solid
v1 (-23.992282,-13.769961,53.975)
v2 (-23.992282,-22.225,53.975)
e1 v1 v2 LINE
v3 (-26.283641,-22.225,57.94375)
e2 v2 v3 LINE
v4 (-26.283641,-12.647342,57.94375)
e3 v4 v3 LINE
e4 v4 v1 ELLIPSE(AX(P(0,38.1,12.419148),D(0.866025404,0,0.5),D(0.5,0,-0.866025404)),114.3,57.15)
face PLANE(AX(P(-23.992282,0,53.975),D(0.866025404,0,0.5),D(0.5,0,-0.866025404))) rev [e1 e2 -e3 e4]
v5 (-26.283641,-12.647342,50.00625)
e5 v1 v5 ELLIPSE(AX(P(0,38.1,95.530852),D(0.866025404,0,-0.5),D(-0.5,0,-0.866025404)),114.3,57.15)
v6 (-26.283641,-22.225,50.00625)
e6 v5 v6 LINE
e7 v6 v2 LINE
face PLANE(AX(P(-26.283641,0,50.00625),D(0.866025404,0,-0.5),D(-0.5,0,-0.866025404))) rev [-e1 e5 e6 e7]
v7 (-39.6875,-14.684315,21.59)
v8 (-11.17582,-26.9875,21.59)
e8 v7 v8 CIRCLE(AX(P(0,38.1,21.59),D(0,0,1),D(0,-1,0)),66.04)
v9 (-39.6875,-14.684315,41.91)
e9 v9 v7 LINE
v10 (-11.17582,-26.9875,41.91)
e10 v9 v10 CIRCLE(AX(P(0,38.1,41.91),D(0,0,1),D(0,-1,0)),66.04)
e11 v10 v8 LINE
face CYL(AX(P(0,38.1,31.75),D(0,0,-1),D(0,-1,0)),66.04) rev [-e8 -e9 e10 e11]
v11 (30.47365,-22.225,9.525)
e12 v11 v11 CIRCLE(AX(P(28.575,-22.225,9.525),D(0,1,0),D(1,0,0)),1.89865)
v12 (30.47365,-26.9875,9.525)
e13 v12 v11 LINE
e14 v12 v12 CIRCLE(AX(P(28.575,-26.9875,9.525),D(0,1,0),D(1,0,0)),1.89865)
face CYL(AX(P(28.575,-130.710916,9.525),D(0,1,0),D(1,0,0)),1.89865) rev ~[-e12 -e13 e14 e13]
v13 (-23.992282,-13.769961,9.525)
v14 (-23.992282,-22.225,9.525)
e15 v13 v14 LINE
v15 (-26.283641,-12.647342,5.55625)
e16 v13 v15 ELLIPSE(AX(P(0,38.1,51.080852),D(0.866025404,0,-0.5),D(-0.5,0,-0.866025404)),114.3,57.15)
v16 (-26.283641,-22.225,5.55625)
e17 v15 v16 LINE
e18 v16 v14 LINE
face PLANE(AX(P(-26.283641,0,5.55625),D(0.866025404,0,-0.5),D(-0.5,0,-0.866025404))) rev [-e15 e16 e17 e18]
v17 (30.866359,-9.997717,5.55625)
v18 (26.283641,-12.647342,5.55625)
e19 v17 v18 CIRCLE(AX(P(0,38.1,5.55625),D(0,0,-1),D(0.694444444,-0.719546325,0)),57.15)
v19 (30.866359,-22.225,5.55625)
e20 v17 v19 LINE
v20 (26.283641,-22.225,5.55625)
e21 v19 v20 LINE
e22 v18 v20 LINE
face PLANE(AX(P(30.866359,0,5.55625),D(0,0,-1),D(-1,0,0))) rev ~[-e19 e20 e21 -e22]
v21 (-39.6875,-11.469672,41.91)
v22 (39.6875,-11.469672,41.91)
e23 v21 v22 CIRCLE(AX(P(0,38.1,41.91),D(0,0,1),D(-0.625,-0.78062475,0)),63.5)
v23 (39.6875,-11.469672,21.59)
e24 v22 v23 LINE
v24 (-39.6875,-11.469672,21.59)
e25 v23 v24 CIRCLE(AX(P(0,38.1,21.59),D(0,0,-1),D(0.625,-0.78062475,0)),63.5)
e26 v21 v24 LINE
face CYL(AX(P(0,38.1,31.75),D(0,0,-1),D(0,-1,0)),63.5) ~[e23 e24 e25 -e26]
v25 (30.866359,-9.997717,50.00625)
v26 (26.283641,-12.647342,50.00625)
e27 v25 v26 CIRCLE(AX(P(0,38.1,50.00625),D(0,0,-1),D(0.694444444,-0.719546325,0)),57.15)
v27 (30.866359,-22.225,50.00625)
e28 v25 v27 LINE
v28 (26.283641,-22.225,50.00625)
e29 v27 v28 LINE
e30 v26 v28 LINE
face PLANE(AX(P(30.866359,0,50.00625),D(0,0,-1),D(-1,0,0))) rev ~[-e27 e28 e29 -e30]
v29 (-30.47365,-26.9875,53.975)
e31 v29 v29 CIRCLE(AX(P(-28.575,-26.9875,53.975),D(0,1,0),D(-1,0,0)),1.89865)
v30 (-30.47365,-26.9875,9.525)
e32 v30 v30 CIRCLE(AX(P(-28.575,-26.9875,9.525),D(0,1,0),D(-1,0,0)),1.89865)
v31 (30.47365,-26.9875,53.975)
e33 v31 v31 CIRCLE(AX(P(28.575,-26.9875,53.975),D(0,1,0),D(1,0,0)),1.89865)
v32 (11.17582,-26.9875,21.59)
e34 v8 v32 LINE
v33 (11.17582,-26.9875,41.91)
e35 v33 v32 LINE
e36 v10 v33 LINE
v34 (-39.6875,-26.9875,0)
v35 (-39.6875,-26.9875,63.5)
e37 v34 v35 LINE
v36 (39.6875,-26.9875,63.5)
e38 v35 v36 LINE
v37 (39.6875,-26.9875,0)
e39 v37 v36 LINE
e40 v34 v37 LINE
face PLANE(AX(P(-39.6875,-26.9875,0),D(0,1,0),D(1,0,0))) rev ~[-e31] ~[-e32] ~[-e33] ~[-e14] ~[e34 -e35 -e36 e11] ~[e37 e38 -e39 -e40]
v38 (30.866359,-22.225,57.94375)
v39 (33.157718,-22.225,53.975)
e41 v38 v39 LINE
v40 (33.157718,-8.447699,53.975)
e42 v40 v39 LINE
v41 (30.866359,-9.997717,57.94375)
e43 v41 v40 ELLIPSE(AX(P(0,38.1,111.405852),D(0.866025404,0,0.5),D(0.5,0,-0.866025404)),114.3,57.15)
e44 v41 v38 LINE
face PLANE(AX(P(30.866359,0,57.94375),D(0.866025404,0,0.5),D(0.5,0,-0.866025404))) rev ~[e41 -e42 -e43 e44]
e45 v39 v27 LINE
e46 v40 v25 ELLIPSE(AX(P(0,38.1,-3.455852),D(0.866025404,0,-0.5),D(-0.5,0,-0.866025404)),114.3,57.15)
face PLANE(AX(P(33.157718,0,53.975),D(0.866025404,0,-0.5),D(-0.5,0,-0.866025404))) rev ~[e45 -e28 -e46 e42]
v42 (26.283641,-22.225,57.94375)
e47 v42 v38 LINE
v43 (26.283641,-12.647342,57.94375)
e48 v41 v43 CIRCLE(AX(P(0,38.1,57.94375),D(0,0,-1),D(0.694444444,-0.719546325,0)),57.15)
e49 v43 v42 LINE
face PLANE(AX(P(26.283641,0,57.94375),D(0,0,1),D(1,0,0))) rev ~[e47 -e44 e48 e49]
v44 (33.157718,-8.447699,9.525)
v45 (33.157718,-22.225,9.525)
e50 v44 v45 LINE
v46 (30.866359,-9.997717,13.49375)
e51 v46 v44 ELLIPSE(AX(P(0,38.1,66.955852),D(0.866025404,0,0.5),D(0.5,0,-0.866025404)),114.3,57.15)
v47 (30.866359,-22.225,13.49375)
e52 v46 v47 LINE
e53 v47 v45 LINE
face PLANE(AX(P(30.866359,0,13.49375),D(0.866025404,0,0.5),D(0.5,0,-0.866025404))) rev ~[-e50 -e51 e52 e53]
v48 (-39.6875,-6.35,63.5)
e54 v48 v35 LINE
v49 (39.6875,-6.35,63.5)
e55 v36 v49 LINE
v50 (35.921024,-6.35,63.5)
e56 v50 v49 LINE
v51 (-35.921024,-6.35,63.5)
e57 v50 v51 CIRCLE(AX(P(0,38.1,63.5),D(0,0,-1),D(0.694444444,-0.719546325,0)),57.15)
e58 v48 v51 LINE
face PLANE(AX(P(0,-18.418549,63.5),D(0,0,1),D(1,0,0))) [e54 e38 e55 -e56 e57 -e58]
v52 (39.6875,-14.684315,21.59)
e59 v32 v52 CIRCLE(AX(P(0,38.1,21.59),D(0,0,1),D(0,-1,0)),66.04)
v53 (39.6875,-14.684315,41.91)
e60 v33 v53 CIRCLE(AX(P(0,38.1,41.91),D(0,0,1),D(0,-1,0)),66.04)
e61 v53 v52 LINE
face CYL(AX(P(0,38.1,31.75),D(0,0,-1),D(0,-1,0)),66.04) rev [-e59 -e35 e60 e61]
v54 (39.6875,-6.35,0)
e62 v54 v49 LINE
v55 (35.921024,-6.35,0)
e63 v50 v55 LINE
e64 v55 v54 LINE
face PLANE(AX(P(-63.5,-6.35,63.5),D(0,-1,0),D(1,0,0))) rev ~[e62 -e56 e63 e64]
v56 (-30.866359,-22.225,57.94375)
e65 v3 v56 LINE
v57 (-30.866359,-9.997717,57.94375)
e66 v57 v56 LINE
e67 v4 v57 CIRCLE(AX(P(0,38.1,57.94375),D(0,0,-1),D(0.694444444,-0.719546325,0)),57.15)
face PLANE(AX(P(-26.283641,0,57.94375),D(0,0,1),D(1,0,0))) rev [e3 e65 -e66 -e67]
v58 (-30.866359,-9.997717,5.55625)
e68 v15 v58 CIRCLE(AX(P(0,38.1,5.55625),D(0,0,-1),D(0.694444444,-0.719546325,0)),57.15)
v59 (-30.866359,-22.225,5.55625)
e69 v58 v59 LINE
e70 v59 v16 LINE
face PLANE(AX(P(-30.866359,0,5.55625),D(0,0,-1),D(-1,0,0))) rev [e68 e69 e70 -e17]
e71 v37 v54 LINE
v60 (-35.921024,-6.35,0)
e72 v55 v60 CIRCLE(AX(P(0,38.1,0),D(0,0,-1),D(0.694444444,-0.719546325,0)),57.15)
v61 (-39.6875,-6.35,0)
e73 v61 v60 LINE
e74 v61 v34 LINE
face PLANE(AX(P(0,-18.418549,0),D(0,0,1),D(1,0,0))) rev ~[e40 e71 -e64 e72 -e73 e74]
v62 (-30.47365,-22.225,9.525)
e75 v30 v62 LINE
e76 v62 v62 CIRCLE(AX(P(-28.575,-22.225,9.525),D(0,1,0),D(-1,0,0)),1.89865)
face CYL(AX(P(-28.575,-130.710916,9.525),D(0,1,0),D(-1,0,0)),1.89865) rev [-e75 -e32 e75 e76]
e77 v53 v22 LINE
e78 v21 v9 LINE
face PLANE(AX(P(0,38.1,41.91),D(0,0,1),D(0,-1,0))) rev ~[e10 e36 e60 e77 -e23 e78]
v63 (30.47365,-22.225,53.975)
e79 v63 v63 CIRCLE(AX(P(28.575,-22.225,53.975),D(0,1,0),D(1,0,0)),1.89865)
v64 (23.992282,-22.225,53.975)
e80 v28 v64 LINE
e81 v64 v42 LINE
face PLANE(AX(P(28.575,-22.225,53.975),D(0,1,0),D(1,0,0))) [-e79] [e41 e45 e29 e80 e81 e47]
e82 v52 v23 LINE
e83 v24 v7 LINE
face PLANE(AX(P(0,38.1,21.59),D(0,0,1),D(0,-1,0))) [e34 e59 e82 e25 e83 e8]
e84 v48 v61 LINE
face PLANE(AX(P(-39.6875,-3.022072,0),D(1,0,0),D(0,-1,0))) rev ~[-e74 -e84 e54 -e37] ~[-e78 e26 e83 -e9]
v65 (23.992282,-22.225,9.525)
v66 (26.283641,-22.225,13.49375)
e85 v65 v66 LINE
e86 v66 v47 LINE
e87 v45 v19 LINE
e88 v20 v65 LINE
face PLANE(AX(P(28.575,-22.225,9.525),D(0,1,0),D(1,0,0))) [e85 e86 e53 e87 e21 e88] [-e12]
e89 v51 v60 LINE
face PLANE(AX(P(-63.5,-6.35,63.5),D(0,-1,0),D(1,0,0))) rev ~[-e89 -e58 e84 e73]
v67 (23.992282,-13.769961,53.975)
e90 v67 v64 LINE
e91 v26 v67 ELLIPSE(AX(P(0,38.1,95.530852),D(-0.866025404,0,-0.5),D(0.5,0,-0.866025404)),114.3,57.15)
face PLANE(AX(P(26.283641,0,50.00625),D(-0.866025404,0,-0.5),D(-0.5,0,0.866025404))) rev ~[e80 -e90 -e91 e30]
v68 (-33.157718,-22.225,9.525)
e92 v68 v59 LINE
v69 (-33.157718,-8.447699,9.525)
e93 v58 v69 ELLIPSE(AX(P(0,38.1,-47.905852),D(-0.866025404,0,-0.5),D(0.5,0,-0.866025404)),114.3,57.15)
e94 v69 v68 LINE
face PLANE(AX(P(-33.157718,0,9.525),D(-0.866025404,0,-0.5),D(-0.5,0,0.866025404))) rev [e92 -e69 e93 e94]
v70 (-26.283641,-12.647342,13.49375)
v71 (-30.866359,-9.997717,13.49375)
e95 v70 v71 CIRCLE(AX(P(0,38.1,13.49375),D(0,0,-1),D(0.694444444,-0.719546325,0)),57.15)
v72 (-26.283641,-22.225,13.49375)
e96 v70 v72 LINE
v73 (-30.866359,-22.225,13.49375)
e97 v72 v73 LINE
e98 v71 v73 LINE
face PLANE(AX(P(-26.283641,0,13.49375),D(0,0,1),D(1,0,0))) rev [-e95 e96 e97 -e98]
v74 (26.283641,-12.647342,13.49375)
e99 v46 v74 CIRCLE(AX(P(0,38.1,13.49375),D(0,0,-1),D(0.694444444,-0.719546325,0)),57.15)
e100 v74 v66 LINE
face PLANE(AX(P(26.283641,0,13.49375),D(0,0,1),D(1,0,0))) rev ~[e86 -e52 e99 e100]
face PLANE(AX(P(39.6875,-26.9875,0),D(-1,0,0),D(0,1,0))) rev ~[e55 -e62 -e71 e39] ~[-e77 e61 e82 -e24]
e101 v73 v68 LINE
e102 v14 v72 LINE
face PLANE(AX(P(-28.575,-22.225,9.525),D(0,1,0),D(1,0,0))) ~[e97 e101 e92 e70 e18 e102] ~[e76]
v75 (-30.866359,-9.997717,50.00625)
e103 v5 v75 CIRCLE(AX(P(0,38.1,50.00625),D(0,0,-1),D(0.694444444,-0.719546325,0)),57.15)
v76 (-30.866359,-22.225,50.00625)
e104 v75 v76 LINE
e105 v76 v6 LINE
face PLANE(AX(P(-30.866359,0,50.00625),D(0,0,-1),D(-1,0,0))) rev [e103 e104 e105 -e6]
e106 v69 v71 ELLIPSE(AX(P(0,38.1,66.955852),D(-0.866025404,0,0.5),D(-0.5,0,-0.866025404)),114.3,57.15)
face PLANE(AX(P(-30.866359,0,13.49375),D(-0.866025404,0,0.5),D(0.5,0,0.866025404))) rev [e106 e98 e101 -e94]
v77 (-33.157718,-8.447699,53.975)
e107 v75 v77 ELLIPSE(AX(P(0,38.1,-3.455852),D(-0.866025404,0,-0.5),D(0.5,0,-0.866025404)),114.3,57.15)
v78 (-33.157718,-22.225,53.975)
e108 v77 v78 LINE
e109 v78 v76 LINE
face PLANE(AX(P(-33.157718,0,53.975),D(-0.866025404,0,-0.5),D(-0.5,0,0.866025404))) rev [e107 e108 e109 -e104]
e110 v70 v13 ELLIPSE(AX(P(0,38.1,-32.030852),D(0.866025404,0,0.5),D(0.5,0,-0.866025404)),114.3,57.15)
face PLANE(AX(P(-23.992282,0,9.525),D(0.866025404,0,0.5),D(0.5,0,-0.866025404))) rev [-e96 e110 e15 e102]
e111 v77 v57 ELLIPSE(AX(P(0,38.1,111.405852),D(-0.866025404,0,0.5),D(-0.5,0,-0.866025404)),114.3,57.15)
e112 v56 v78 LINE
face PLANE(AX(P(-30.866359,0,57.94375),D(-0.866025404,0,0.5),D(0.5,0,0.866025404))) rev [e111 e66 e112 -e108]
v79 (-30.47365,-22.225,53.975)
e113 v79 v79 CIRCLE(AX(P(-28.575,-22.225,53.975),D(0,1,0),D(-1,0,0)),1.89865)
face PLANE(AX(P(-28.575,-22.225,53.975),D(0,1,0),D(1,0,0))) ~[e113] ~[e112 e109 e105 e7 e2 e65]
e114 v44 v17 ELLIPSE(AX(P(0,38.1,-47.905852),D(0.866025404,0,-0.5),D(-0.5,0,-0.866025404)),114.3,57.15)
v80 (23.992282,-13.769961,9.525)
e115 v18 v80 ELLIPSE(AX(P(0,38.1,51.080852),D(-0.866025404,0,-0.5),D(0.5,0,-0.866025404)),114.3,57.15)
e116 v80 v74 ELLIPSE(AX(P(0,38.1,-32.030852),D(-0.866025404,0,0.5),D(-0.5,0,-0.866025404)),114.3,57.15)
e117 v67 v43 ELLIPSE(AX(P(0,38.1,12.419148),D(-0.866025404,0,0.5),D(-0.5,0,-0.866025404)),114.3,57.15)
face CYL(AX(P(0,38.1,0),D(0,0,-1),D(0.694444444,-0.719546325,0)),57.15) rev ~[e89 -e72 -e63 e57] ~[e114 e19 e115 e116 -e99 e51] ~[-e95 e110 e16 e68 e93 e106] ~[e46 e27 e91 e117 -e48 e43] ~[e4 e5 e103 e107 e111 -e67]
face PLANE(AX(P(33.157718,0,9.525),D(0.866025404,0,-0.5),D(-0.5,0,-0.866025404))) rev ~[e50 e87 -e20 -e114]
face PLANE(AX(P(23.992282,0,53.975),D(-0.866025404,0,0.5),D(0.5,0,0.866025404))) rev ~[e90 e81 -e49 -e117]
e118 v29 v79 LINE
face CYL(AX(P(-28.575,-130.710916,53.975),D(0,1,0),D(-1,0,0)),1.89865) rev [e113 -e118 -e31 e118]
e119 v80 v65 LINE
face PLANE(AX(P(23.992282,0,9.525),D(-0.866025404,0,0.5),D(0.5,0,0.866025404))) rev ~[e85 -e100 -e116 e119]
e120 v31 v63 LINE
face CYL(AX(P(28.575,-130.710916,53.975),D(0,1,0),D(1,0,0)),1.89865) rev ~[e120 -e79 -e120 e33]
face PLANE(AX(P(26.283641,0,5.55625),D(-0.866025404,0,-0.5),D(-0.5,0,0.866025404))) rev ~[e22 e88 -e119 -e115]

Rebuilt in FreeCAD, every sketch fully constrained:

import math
import FreeCAD as App
import Part
import Sketcher

V = App.Vector
Q = App.Units.Quantity


def add_polygon(sketch, points):
    """Adds a closed chain of lines whose ends are joined by coincident constraints."""
    first, n = sketch.GeometryCount, len(points)
    for a, b in zip(points, points[1:] + points[:1]):
        sketch.addGeometry(Part.LineSegment(App.Vector(*a, 0), App.Vector(*b, 0)), False)
    for i in range(n):
        sketch.addConstraint(Sketcher.Constraint("Coincident", first + i, 2, first + (i + 1) % n, 1))

doc = App.newDocument("Part")
body = doc.addObject("PartDesign::Body", "Body")

sketch1 = body.newObject("Sketcher::SketchObject", "Sketch")
sketch1.AttachmentSupport = (doc.getObject("XY_Plane"), [""])
sketch1.MapMode = "FlatFace"
sketch1.addGeometry([
    Part.LineSegment(V(-40, -3, 0), V(-40, -27, 0)),
    Part.LineSegment(V(-40, -27, 0), V(40, -27, 0)),
    Part.LineSegment(V(40, -27, 0), V(40, -3, 0)),
    Part.ArcOfCircle(Part.Circle(V(0, 38, 0), V(0, 0, 1), 57), math.radians(-134), math.radians(-46)),
], False)
sketch1.addConstraint([
    Sketcher.Constraint("Coincident", 0, 2, 1, 1),
    Sketcher.Constraint("Coincident", 1, 2, 2, 1),
    Sketcher.Constraint("Coincident", 2, 2, 3, 2),
    Sketcher.Constraint("Coincident", 3, 1, 0, 1),
    Sketcher.Constraint("Vertical", 0),
    Sketcher.Constraint("Horizontal", 1),
    Sketcher.Constraint("Vertical", 2),
    Sketcher.Constraint("Symmetric", 2, 2, 3, 1, -2),
    Sketcher.Constraint("Radius", 3, Q("2.25 in")),
    Sketcher.Constraint("DistanceY", -1, 1, 3, 3, Q("1.5 in")),
    Sketcher.Constraint("DistanceX", 1, 1, 1, 2, Q("3.125 in")),
    Sketcher.Constraint("DistanceY", 0, 2, -1, 1, Q("1.0625 in")),
])
pad1 = body.newObject("PartDesign::Pad", "Pad")
pad1.Profile = sketch1
pad1.Length = Q("2.5 in")

sketch2 = body.newObject("Sketcher::SketchObject", "Sketch001")
sketch2.AttachmentSupport = (doc.getObject("XY_Plane"), [""])
sketch2.MapMode = "FlatFace"
sketch2.AttachmentOffset = App.Placement(V(0, 0, 2.5 * 25.4), App.Rotation())
add_polygon(sketch2, [(-64, 6), (-64, -6), (64, -6), (64, 6)])
sketch2.addConstraint([
    Sketcher.Constraint("Vertical", 0),
    Sketcher.Constraint("Horizontal", 1),
    Sketcher.Constraint("Vertical", 2),
    Sketcher.Constraint("Horizontal", 3),
    Sketcher.Constraint("Symmetric", 0, 2, 2, 2, -1, 1),
    Sketcher.Constraint("DistanceX", 1, 1, 1, 2, Q("5 in")),
    Sketcher.Constraint("DistanceY", 0, 2, 0, 1, Q("0.5 in")),
])
pocket1 = body.newObject("PartDesign::Pocket", "Pocket")
pocket1.Profile = sketch2
pocket1.Type = "ThroughAll"

sketch3 = body.newObject("Sketcher::SketchObject", "Sketch002")
sketch3.AttachmentSupport = (doc.getObject("YZ_Plane"), [""])
sketch3.MapMode = "FlatFace"
add_polygon(sketch3, [(-25.4, 41.9), (-27.9, 41.9), (-27.9, 21.6), (-25.4, 21.6)])
sketch3.addGeometry(Part.LineSegment(V(38.1, 21.6, 0), V(38.1, 41.9, 0)), True)
sketch3.addConstraint([
    Sketcher.Constraint("Horizontal", 0),
    Sketcher.Constraint("Vertical", 1),
    Sketcher.Constraint("Horizontal", 2),
    Sketcher.Constraint("Vertical", 3),
    Sketcher.Constraint("Vertical", 4),
    Sketcher.Constraint("Horizontal", 2, 2, 4, 1),
    Sketcher.Constraint("Horizontal", 3, 2, 4, 2),
    Sketcher.Constraint("DistanceX", 0, 2, 0, 1, Q("0.1 in")),
    Sketcher.Constraint("DistanceY", 1, 2, 1, 1, Q("0.8 in")),
    Sketcher.Constraint("DistanceX", 2, 2, -1, 1, Q("1 in")),
    Sketcher.Constraint("DistanceX", -1, 1, 4, 1, Q("1.5 in")),
    Sketcher.Constraint("DistanceY", -1, 1, 0, 2, Q("1.65 in")),
])
groove = body.newObject("PartDesign::Groove", "Groove")
groove.Profile = sketch3
groove.ReferenceAxis = (sketch3, ["Axis0"])
groove.Angle = 360

sketch4 = body.newObject("Sketcher::SketchObject", "Sketch003")
sketch4.AttachmentSupport = (doc.getObject("XZ_Plane"), [""])
sketch4.MapMode = "FlatFace"
sketch4.AttachmentOffset = App.Placement(V(0, 0, 1.0625 * 25.4), App.Rotation())
sketch4.addGeometry([
    Part.Circle(V(28.6, 9.5, 0), V(0, 0, 1), 1.9),
    Part.Circle(V(28.6, 54, 0), V(0, 0, 1), 1.9),
], False)
sketch4.addConstraint([
    Sketcher.Constraint("Equal", 0, 1),
    Sketcher.Constraint("Vertical", 0, 3, 1, 3),
    Sketcher.Constraint("Diameter", 0, Q("0.1495 in")),
    Sketcher.Constraint("DistanceY", 0, 3, 1, 3, Q("1.75 in")),
    Sketcher.Constraint("DistanceX", -1, 1, 0, 3, Q("1.125 in")),
    Sketcher.Constraint("DistanceY", -1, 1, 0, 3, Q("0.375 in")),
])
doc.recompute()
hole = body.newObject("PartDesign::Hole", "Hole")
hole.Profile = sketch4
hole.ThreadType = "None"
hole.Diameter = Q("0.1495 in")
hole.DepthType = "ThroughAll"

sketch5 = body.newObject("Sketcher::SketchObject", "Sketch004")
sketch5.AttachmentSupport = (doc.getObject("XZ_Plane"), [""])
sketch5.MapMode = "FlatFace"
add_polygon(sketch5, [(24, 9.5), (26.3, 13.5), (30.9, 13.5), (33.2, 9.5), (30.9, 5.6), (26.3, 5.6)])
add_polygon(sketch5, [(24, 54), (26.3, 57.9), (30.9, 57.9), (33.2, 54), (30.9, 50), (26.3, 50)])
sketch5.addConstraint([
    Sketcher.Constraint("Horizontal", 1),
    Sketcher.Constraint("Horizontal", 4),
    Sketcher.Constraint("Horizontal", 7),
    Sketcher.Constraint("Horizontal", 10),
    Sketcher.Constraint("Parallel", 0, 3),
    Sketcher.Constraint("Parallel", 2, 5),
    Sketcher.Constraint("Parallel", 3, 6),
    Sketcher.Constraint("Parallel", 5, 8),
    Sketcher.Constraint("Parallel", 6, 9),
    Sketcher.Constraint("Parallel", 8, 11),
    Sketcher.Constraint("Horizontal", 2, 2, 5, 2),
    Sketcher.Constraint("Horizontal", 8, 2, 11, 2),
    Sketcher.Constraint("Vertical", 1, 2, 3, 2),
    Sketcher.Constraint("Vertical", 0, 2, 4, 2),
    Sketcher.Constraint("Vertical", 4, 2, 6, 2),
    Sketcher.Constraint("Vertical", 3, 2, 7, 2),
    Sketcher.Constraint("Vertical", 2, 2, 8, 2),
    Sketcher.Constraint("Vertical", 7, 2, 9, 2),
    Sketcher.Constraint("Angle", 0, Q("60 deg")),
    Sketcher.Constraint("DistanceY", 0, 2, 6, 2, Q("1.75 in")),
    Sketcher.Constraint("DistanceY", -1, 1, 0, 2, Q("0.53125 in")),
    Sketcher.Constraint("DistanceY", -1, 1, 2, 2, Q("0.375 in")),
    Sketcher.Constraint("DistanceX", 1, 1, 1, 2, Q("4.582718 mm")),
    Sketcher.Constraint("DistanceX", -1, 1, 0, 2, Q("26.283641 mm")),
])
pocket2 = body.newObject("PartDesign::Pocket", "Pocket001")
pocket2.Profile = sketch5
pocket2.Length = Q("0.875 in")
pocket2.Reversed = True
doc.recompute()

mirrored = body.newObject("PartDesign::Mirrored", "Mirrored")
mirrored.Originals = [hole, pocket2]
mirrored.MirrorPlane = (doc.getObject("YZ_Plane"), [""])
body.Tip = mirrored

doc.recompute()
